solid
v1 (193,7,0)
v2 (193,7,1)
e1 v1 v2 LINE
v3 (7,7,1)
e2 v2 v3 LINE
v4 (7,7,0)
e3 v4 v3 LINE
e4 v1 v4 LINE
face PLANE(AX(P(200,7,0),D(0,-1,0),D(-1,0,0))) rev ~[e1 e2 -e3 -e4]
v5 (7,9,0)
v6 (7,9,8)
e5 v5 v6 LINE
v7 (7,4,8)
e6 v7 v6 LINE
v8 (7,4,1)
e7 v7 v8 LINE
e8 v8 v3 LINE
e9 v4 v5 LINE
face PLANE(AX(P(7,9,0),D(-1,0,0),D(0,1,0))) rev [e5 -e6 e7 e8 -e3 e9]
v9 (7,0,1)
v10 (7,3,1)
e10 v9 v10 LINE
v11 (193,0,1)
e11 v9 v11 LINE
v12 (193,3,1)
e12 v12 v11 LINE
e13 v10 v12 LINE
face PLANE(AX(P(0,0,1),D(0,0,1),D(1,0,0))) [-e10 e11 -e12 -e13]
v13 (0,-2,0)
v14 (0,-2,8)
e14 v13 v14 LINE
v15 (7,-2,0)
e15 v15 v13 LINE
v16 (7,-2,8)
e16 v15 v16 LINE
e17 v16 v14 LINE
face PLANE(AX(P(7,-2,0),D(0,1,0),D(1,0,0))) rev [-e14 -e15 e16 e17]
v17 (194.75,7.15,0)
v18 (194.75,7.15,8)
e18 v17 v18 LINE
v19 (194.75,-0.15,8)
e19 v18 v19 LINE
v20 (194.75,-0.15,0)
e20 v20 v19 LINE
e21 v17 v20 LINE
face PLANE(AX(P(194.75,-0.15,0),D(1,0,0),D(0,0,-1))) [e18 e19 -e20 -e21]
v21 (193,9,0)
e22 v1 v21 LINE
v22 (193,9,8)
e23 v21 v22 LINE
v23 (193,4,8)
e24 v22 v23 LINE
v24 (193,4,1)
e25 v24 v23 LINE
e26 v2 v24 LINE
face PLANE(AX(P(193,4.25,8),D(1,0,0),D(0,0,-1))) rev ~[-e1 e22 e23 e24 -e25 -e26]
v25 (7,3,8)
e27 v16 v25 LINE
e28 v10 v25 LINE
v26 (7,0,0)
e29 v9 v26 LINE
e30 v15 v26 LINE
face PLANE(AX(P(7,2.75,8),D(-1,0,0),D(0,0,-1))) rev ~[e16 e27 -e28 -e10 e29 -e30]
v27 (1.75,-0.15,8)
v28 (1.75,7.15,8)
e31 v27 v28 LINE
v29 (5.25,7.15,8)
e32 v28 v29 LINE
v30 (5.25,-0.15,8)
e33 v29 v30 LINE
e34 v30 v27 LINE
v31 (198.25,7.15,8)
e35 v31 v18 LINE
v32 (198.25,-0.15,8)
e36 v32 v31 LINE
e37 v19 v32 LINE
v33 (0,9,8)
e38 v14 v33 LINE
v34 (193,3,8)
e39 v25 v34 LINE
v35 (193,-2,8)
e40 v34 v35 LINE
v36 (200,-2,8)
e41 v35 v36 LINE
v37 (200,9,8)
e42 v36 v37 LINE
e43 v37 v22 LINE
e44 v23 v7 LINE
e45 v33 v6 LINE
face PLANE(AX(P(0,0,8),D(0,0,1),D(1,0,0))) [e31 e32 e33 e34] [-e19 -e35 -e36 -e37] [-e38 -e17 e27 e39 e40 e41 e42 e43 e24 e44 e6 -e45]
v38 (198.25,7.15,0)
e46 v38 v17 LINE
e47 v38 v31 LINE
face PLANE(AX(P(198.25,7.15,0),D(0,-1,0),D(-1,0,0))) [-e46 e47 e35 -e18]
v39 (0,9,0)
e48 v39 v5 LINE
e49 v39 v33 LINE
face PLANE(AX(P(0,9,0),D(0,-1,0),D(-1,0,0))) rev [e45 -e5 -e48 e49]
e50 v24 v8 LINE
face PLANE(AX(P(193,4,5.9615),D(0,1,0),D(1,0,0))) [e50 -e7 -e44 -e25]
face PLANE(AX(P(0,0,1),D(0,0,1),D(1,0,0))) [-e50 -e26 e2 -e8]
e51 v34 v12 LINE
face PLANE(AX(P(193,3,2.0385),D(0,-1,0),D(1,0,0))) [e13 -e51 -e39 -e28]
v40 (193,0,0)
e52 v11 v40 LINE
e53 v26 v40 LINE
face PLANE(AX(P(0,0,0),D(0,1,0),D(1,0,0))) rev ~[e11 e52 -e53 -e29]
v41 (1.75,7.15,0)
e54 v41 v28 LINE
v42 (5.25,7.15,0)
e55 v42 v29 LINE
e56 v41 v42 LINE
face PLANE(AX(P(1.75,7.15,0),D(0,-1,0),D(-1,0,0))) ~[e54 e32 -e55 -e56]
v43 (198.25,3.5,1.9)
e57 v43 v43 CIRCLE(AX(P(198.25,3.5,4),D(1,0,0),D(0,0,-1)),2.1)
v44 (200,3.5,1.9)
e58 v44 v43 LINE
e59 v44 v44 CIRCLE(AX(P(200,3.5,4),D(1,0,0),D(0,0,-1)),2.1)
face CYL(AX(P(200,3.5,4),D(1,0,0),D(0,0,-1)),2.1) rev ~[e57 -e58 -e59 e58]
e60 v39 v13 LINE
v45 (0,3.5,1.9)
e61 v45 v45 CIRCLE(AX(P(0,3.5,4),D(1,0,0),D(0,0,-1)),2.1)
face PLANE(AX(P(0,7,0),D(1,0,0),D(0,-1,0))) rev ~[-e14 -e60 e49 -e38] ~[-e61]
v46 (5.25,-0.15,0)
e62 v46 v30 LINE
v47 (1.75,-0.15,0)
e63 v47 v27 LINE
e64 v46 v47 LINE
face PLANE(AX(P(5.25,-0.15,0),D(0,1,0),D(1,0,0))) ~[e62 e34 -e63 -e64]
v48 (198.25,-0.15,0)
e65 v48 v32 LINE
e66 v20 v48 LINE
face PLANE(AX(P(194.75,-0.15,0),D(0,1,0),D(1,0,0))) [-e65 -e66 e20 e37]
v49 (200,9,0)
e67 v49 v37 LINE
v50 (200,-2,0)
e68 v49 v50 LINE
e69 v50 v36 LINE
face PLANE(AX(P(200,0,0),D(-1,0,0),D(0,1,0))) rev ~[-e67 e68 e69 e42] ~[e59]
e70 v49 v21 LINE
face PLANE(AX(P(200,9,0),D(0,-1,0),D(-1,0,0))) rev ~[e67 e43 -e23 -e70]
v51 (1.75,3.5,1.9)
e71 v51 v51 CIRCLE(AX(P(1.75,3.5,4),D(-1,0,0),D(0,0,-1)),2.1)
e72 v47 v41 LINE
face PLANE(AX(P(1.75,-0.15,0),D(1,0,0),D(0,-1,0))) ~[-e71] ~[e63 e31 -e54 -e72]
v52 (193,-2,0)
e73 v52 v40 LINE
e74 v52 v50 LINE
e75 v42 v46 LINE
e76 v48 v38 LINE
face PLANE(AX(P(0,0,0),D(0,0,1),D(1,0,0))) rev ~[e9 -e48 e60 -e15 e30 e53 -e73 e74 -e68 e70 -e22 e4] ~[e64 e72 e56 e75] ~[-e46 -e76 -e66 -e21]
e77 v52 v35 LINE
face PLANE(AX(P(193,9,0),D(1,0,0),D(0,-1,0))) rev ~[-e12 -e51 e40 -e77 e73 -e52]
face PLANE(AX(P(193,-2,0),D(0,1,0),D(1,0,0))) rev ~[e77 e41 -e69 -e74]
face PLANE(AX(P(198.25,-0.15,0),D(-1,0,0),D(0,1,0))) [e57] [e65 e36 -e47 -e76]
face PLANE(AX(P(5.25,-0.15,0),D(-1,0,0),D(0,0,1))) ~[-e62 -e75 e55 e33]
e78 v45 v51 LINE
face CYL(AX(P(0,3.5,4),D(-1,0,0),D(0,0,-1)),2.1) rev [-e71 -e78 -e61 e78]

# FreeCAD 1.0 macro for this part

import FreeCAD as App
import Part
import Sketcher

V = App.Vector

doc = App.newDocument("Part")
body = doc.addObject("PartDesign::Body", "Body")

# Sketch on XY plane
sketch1 = doc.addObject("Sketcher::SketchObject", "Sketch")
body.addObject(sketch1)
sketch1.AttachmentSupport = (doc.XY_Plane, [""])
sketch1.MapMode = "FlatFace"
sketch1.addGeometry(Part.LineSegment(V(0, 7, 0), V(0, 0, 0)), False)
sketch1.addGeometry(Part.LineSegment(V(0, 0, 0), V(200, 0, 0)), False)
sketch1.addGeometry(Part.LineSegment(V(200, 0, 0), V(200, 7, 0)), False)
sketch1.addGeometry(Part.LineSegment(V(200, 7, 0), V(0, 7, 0)), False)
sketch1.addConstraint(Sketcher.Constraint("Coincident", 0, 2, 1, 1))
sketch1.addConstraint(Sketcher.Constraint("Coincident", 1, 2, 2, 1))
sketch1.addConstraint(Sketcher.Constraint("Coincident", 2, 2, 3, 1))
sketch1.addConstraint(Sketcher.Constraint("Coincident", 3, 2, 0, 1))
sketch1.addConstraint(Sketcher.Constraint("Vertical", 0))
sketch1.addConstraint(Sketcher.Constraint("Horizontal", 1))
sketch1.addConstraint(Sketcher.Constraint("Vertical", 2))
sketch1.addConstraint(Sketcher.Constraint("Horizontal", 3))
sketch1.addConstraint(Sketcher.Constraint("Coincident", 0, 2, -1, 1))
sketch1.addConstraint(Sketcher.Constraint("DistanceX", 1, 1, 1, 2, 200.0))
sketch1.addConstraint(Sketcher.Constraint("DistanceY", 0, 2, 0, 1, 7.0))
pad1 = doc.addObject("PartDesign::Pad", "Pad")
body.addObject(pad1)
pad1.Profile = sketch1
pad1.Length = 1.5

# Sketch on XY plane
sketch2 = doc.addObject("Sketcher::SketchObject", "Sketch001")
body.addObject(sketch2)
sketch2.AttachmentSupport = (doc.XY_Plane, [""])
sketch2.MapMode = "FlatFace"
sketch2.AttachmentOffset = App.Placement(V(0, 0, 1.5), App.Rotation())
sketch2.addGeometry(Part.LineSegment(V(200, 4.2, 0), V(0, 4.2, 0)), False)
sketch2.addGeometry(Part.LineSegment(V(0, 4.2, 0), V(0, 2.8, 0)), False)
sketch2.addGeometry(Part.LineSegment(V(0, 2.8, 0), V(200, 2.8, 0)), False)
sketch2.addGeometry(Part.LineSegment(V(200, 2.8, 0), V(200, 4.2, 0)), False)
sketch2.addConstraint(Sketcher.Constraint("Coincident", 0, 2, 1, 1))
sketch2.addConstraint(Sketcher.Constraint("Coincident", 1, 2, 2, 1))
sketch2.addConstraint(Sketcher.Constraint("Coincident", 2, 2, 3, 1))
sketch2.addConstraint(Sketcher.Constraint("Coincident", 3, 2, 0, 1))
sketch2.addConstraint(Sketcher.Constraint("Horizontal", 0))
sketch2.addConstraint(Sketcher.Constraint("Vertical", 1))
sketch2.addConstraint(Sketcher.Constraint("Horizontal", 2))
sketch2.addConstraint(Sketcher.Constraint("Vertical", 3))
sketch2.addConstraint(Sketcher.Constraint("PointOnObject", 0, 2, -2))
sketch2.addConstraint(Sketcher.Constraint("DistanceX", 0, 2, 0, 1, 200.0))
sketch2.addConstraint(Sketcher.Constraint("DistanceY", 1, 2, 1, 1, 1.5))
sketch2.addConstraint(Sketcher.Constraint("DistanceY", -1, 1, 1, 2, 2.75))
pad2 = doc.addObject("PartDesign::Pad", "Pad001")
body.addObject(pad2)
pad2.Profile = sketch2
pad2.Length = 6.5

# Sketch on XY plane
sketch3 = doc.addObject("Sketcher::SketchObject", "Sketch002")
body.addObject(sketch3)
sketch3.AttachmentSupport = (doc.XY_Plane, [""])
sketch3.MapMode = "FlatFace"
sketch3.addGeometry(Part.LineSegment(V(200, 9, 0), V(200, -2, 0)), False)
sketch3.addGeometry(Part.LineSegment(V(200, -2, 0), V(193, -2, 0)), False)
sketch3.addGeometry(Part.LineSegment(V(193, -2, 0), V(193, 9, 0)), False)
sketch3.addGeometry(Part.LineSegment(V(193, 9, 0), V(200, 9, 0)), False)
sketch3.addConstraint(Sketcher.Constraint("Coincident", 0, 2, 1, 1))
sketch3.addConstraint(Sketcher.Constraint("Coincident", 1, 2, 2, 1))
sketch3.addConstraint(Sketcher.Constraint("Coincident", 2, 2, 3, 1))
sketch3.addConstraint(Sketcher.Constraint("Coincident", 3, 2, 0, 1))
sketch3.addConstraint(Sketcher.Constraint("Vertical", 0))
sketch3.addConstraint(Sketcher.Constraint("Horizontal", 1))
sketch3.addConstraint(Sketcher.Constraint("Vertical", 2))
sketch3.addConstraint(Sketcher.Constraint("Horizontal", 3))
sketch3.addConstraint(Sketcher.Constraint("DistanceX", 1, 2, 1, 1, 7.0))
sketch3.addConstraint(Sketcher.Constraint("DistanceY", 0, 2, 0, 1, 11.0))
sketch3.addConstraint(Sketcher.Constraint("DistanceY", 0, 2, -1, 1, 2.0))
sketch3.addConstraint(Sketcher.Constraint("DistanceX", -1, 1, 0, 2, 200.0))
pad3 = doc.addObject("PartDesign::Pad", "Pad002")
body.addObject(pad3)
pad3.Profile = sketch3
pad3.Length = 8

# Sketch on XY plane
sketch4 = doc.addObject("Sketcher::SketchObject", "Sketch003")
body.addObject(sketch4)
sketch4.AttachmentSupport = (doc.XY_Plane, [""])
sketch4.MapMode = "FlatFace"
sketch4.addGeometry(Part.LineSegment(V(194.8, 7.2, 0), V(198.2, 7.2, 0)), False)
sketch4.addGeometry(Part.LineSegment(V(198.2, 7.2, 0), V(198.2, -0.1, 0)), False)
sketch4.addGeometry(Part.LineSegment(V(198.2, -0.1, 0), V(194.8, -0.1, 0)), False)
sketch4.addGeometry(Part.LineSegment(V(194.8, -0.1, 0), V(194.8, 7.2, 0)), False)
sketch4.addConstraint(Sketcher.Constraint("Coincident", 0, 2, 1, 1))
sketch4.addConstraint(Sketcher.Constraint("Coincident", 1, 2, 2, 1))
sketch4.addConstraint(Sketcher.Constraint("Coincident", 2, 2, 3, 1))
sketch4.addConstraint(Sketcher.Constraint("Coincident", 3, 2, 0, 1))
sketch4.addConstraint(Sketcher.Constraint("Horizontal", 0))
sketch4.addConstraint(Sketcher.Constraint("Vertical", 1))
sketch4.addConstraint(Sketcher.Constraint("Horizontal", 2))
sketch4.addConstraint(Sketcher.Constraint("Vertical", 3))
sketch4.addConstraint(Sketcher.Constraint("DistanceX", 0, 1, 0, 2, 3.5))
sketch4.addConstraint(Sketcher.Constraint("DistanceY", 1, 2, 1, 1, 7.3))
sketch4.addConstraint(Sketcher.Constraint("DistanceX", -1, 1, 0, 2, 198.25))
sketch4.addConstraint(Sketcher.Constraint("DistanceY", -1, 1, 0, 2, 7.15))
pocket1 = doc.addObject("PartDesign::Pocket", "Pocket")
body.addObject(pocket1)
pocket1.Profile = sketch4
pocket1.Length = 8
pocket1.Reversed = True

# Sketch on YZ plane
sketch5 = doc.addObject("Sketcher::SketchObject", "Sketch004")
body.addObject(sketch5)
sketch5.AttachmentSupport = (doc.YZ_Plane, [""])
sketch5.MapMode = "FlatFace"
sketch5.AttachmentOffset = App.Placement(V(0, 0, 200), App.Rotation())
sketch5.addGeometry(Part.Circle(V(3.5, 4, 0), V(0, 0, 1), 2.1), False)
sketch5.addConstraint(Sketcher.Constraint("Diameter", 0, 4.2))
sketch5.addConstraint(Sketcher.Constraint("DistanceY", -1, 1, 0, 3, 4.0))
sketch5.addConstraint(Sketcher.Constraint("DistanceX", -1, 1, 0, 3, 3.5))
pocket2 = doc.addObject("PartDesign::Pocket", "Pocket001")
body.addObject(pocket2)
pocket2.Profile = sketch5
pocket2.Length = 7
doc.recompute()

datumplane = doc.addObject("PartDesign::Plane", "DatumPlane")
body.addObject(datumplane)
datumplane.AttachmentSupport = (doc.YZ_Plane, [""])
datumplane.MapMode = "FlatFace"
datumplane.AttachmentOffset = App.Placement(V(0, 0, 100), App.Rotation())
mirrored = doc.addObject("PartDesign::Mirrored", "Mirrored")
body.addObject(mirrored)
mirrored.Originals = [pad3]
mirrored.MirrorPlane = (datumplane, [""])
body.Tip = mirrored
doc.recompute()

datumplane2 = doc.addObject("PartDesign::Plane", "DatumPlane001")
body.addObject(datumplane2)
datumplane2.AttachmentSupport = (doc.YZ_Plane, [""])
datumplane2.MapMode = "FlatFace"
datumplane2.AttachmentOffset = App.Placement(V(0, 0, 100), App.Rotation())
mirrored2 = doc.addObject("PartDesign::Mirrored", "Mirrored001")
body.addObject(mirrored2)
mirrored2.Originals = [pocket2, pocket1]
mirrored2.MirrorPlane = (datumplane2, [""])
body.Tip = mirrored2

# Sketch on XY plane
sketch6 = doc.addObject("Sketcher::SketchObject", "Sketch005")
body.addObject(sketch6)
sketch6.AttachmentSupport = (doc.XY_Plane, [""])
sketch6.MapMode = "FlatFace"
sketch6.AttachmentOffset = App.Placement(V(0, 0, 1.5), App.Rotation())
sketch6.addGeometry(Part.LineSegment(V(193, 7, 0), V(7, 7, 0)), False)
sketch6.addGeometry(Part.LineSegment(V(7, 7, 0), V(7, 4.2, 0)), False)
sketch6.addGeometry(Part.LineSegment(V(7, 4.2, 0), V(193, 4.2, 0)), False)
sketch6.addGeometry(Part.LineSegment(V(193, 4.2, 0), V(193, 7, 0)), False)
sketch6.addConstraint(Sketcher.Constraint("Coincident", 0, 2, 1, 1))
sketch6.addConstraint(Sketcher.Constraint("Coincident", 1, 2, 2, 1))
sketch6.addConstraint(Sketcher.Constraint("Coincident", 2, 2, 3, 1))
sketch6.addConstraint(Sketcher.Constraint("Coincident", 3, 2, 0, 1))
sketch6.addConstraint(Sketcher.Constraint("Horizontal", 0))
sketch6.addConstraint(Sketcher.Constraint("Vertical", 1))
sketch6.addConstraint(Sketcher.Constraint("Horizontal", 2))
sketch6.addConstraint(Sketcher.Constraint("Vertical", 3))
sketch6.addConstraint(Sketcher.Constraint("DistanceX", 0, 2, 0, 1, 186.0))
sketch6.addConstraint(Sketcher.Constraint("DistanceX", -1, 1, 0, 2, 7.0))
sketch6.addConstraint(Sketcher.Constraint("DistanceY", -1, 1, 0, 2, 7.0))
sketch6.addConstraint(Sketcher.Constraint("DistanceY", 1, 2, 1, 1, 2.75))
pocket3 = doc.addObject("PartDesign::Pocket", "Pocket002")
body.addObject(pocket3)
pocket3.Profile = sketch6
pocket3.Length = 0.5

# Sketch on XY plane
sketch7 = doc.addObject("Sketcher::SketchObject", "Sketch006")
body.addObject(sketch7)
sketch7.AttachmentSupport = (doc.XY_Plane, [""])
sketch7.MapMode = "FlatFace"
sketch7.AttachmentOffset = App.Placement(V(0, 0, 1.5), App.Rotation())
sketch7.addGeometry(Part.LineSegment(V(193, 2.8, 0), V(7, 2.8, 0)), False)
sketch7.addGeometry(Part.LineSegment(V(7, 2.8, 0), V(7, 0, 0)), False)
sketch7.addGeometry(Part.LineSegment(V(7, 0, 0), V(193, 0, 0)), False)
sketch7.addGeometry(Part.LineSegment(V(193, 0, 0), V(193, 2.8, 0)), False)
sketch7.addConstraint(Sketcher.Constraint("Coincident", 0, 2, 1, 1))
sketch7.addConstraint(Sketcher.Constraint("Coincident", 1, 2, 2, 1))
sketch7.addConstraint(Sketcher.Constraint("Coincident", 2, 2, 3, 1))
sketch7.addConstraint(Sketcher.Constraint("Coincident", 3, 2, 0, 1))
sketch7.addConstraint(Sketcher.Constraint("Horizontal", 0))
sketch7.addConstraint(Sketcher.Constraint("Vertical", 1))
sketch7.addConstraint(Sketcher.Constraint("Horizontal", 2))
sketch7.addConstraint(Sketcher.Constraint("Vertical", 3))
sketch7.addConstraint(Sketcher.Constraint("PointOnObject", 1, 2, -1))
sketch7.addConstraint(Sketcher.Constraint("DistanceX", 0, 2, 0, 1, 186.0))
sketch7.addConstraint(Sketcher.Constraint("DistanceX", -1, 1, 0, 2, 7.0))
sketch7.addConstraint(Sketcher.Constraint("DistanceY", 1, 2, 1, 1, 2.75))
pocket4 = doc.addObject("PartDesign::Pocket", "Pocket003")
body.addObject(pocket4)
pocket4.Profile = sketch7
pocket4.Length = 0.5

# Sketch on XZ plane
sketch8 = doc.addObject("Sketcher::SketchObject", "Sketch007")
body.addObject(sketch8)
sketch8.AttachmentSupport = (doc.XZ_Plane, [""])
sketch8.MapMode = "FlatFace"
sketch8.AttachmentOffset = App.Placement(V(0, 0, -4.25), App.Rotation())
sketch8.addGeometry(Part.LineSegment(V(193, 1, 0), V(7, 1, 0)), False)
sketch8.addGeometry(Part.LineSegment(V(7, 1, 0), V(7, 8, 0)), False)
sketch8.addGeometry(Part.LineSegment(V(7, 8, 0), V(193, 8, 0)), False)
sketch8.addGeometry(Part.LineSegment(V(193, 8, 0), V(193, 1, 0)), False)
sketch8.addConstraint(Sketcher.Constraint("Coincident", 0, 2, 1, 1))
sketch8.addConstraint(Sketcher.Constraint("Coincident", 1, 2, 2, 1))
sketch8.addConstraint(Sketcher.Constraint("Coincident", 2, 2, 3, 1))
sketch8.addConstraint(Sketcher.Constraint("Coincident", 3, 2, 0, 1))
sketch8.addConstraint(Sketcher.Constraint("Horizontal", 0))
sketch8.addConstraint(Sketcher.Constraint("Vertical", 1))
sketch8.addConstraint(Sketcher.Constraint("Horizontal", 2))
sketch8.addConstraint(Sketcher.Constraint("Vertical", 3))
sketch8.addConstraint(Sketcher.Constraint("DistanceX", 0, 2, 0, 1, 186.0))
sketch8.addConstraint(Sketcher.Constraint("DistanceY", 1, 1, 1, 2, 7.0))
sketch8.addConstraint(Sketcher.Constraint("DistanceX", -1, 1, 0, 2, 7.0))
sketch8.addConstraint(Sketcher.Constraint("DistanceY", -1, 1, 0, 2, 1.0))
pocket5 = doc.addObject("PartDesign::Pocket", "Pocket004")
body.addObject(pocket5)
pocket5.Profile = sketch8
pocket5.Length = 0.25
pocket5.Reversed = True

# Sketch on XZ plane
sketch9 = doc.addObject("Sketcher::SketchObject", "Sketch008")
body.addObject(sketch9)
sketch9.AttachmentSupport = (doc.XZ_Plane, [""])
sketch9.MapMode = "FlatFace"
sketch9.AttachmentOffset = App.Placement(V(0, 0, -2.75), App.Rotation())
sketch9.addGeometry(Part.LineSegment(V(193, 8, 0), V(7, 8, 0)), False)
sketch9.addGeometry(Part.LineSegment(V(7, 8, 0), V(7, 1, 0)), False)
sketch9.addGeometry(Part.LineSegment(V(7, 1, 0), V(193, 1, 0)), False)
sketch9.addGeometry(Part.LineSegment(V(193, 1, 0), V(193, 8, 0)), False)
sketch9.addConstraint(Sketcher.Constraint("Coincident", 0, 2, 1, 1))
sketch9.addConstraint(Sketcher.Constraint("Coincident", 1, 2, 2, 1))
sketch9.addConstraint(Sketcher.Constraint("Coincident", 2, 2, 3, 1))
sketch9.addConstraint(Sketcher.Constraint("Coincident", 3, 2, 0, 1))
sketch9.addConstraint(Sketcher.Constraint("Horizontal", 0))
sketch9.addConstraint(Sketcher.Constraint("Vertical", 1))
sketch9.addConstraint(Sketcher.Constraint("Horizontal", 2))
sketch9.addConstraint(Sketcher.Constraint("Vertical", 3))
sketch9.addConstraint(Sketcher.Constraint("DistanceX", 0, 2, 0, 1, 186.0))
sketch9.addConstraint(Sketcher.Constraint("DistanceY", 1, 2, 1, 1, 7.0))
sketch9.addConstraint(Sketcher.Constraint("DistanceX", -1, 1, 0, 2, 7.0))
sketch9.addConstraint(Sketcher.Constraint("DistanceY", -1, 1, 0, 2, 8.0))
pocket6 = doc.addObject("PartDesign::Pocket", "Pocket005")
body.addObject(pocket6)
pocket6.Profile = sketch9
pocket6.Length = 0.25

# Sketch on YZ plane
sketch10 = doc.addObject("Sketcher::SketchObject", "Sketch009")
body.addObject(sketch10)
sketch10.AttachmentSupport = (doc.YZ_Plane, [""])
sketch10.MapMode = "FlatFace"
sketch10.AttachmentOffset = App.Placement(V(0, 0, 194.75), App.Rotation())
sketch10.addGeometry(Part.Circle(V(3.5, 4, 0), V(0, 0, 1), 2.1), False)
sketch10.addConstraint(Sketcher.Constraint("Diameter", 0, 4.2))
sketch10.addConstraint(Sketcher.Constraint("DistanceY", -1, 1, 0, 3, 4.0))
sketch10.addConstraint(Sketcher.Constraint("DistanceX", -1, 1, 0, 3, 3.5))
pad4 = doc.addObject("PartDesign::Pad", "Pad003")
body.addObject(pad4)
pad4.Profile = sketch10
pad4.Length = 1.75
pad4.Reversed = True
doc.recompute()

datumplane3 = doc.addObject("PartDesign::Plane", "DatumPlane002")
body.addObject(datumplane3)
datumplane3.AttachmentSupport = (doc.YZ_Plane, [""])
datumplane3.MapMode = "FlatFace"
datumplane3.AttachmentOffset = App.Placement(V(0, 0, 100), App.Rotation())
mirrored3 = doc.addObject("PartDesign::Mirrored", "Mirrored002")
body.addObject(mirrored3)
mirrored3.Originals = [pad4]
mirrored3.MirrorPlane = (datumplane3, [""])
body.Tip = mirrored3

doc.recompute()
